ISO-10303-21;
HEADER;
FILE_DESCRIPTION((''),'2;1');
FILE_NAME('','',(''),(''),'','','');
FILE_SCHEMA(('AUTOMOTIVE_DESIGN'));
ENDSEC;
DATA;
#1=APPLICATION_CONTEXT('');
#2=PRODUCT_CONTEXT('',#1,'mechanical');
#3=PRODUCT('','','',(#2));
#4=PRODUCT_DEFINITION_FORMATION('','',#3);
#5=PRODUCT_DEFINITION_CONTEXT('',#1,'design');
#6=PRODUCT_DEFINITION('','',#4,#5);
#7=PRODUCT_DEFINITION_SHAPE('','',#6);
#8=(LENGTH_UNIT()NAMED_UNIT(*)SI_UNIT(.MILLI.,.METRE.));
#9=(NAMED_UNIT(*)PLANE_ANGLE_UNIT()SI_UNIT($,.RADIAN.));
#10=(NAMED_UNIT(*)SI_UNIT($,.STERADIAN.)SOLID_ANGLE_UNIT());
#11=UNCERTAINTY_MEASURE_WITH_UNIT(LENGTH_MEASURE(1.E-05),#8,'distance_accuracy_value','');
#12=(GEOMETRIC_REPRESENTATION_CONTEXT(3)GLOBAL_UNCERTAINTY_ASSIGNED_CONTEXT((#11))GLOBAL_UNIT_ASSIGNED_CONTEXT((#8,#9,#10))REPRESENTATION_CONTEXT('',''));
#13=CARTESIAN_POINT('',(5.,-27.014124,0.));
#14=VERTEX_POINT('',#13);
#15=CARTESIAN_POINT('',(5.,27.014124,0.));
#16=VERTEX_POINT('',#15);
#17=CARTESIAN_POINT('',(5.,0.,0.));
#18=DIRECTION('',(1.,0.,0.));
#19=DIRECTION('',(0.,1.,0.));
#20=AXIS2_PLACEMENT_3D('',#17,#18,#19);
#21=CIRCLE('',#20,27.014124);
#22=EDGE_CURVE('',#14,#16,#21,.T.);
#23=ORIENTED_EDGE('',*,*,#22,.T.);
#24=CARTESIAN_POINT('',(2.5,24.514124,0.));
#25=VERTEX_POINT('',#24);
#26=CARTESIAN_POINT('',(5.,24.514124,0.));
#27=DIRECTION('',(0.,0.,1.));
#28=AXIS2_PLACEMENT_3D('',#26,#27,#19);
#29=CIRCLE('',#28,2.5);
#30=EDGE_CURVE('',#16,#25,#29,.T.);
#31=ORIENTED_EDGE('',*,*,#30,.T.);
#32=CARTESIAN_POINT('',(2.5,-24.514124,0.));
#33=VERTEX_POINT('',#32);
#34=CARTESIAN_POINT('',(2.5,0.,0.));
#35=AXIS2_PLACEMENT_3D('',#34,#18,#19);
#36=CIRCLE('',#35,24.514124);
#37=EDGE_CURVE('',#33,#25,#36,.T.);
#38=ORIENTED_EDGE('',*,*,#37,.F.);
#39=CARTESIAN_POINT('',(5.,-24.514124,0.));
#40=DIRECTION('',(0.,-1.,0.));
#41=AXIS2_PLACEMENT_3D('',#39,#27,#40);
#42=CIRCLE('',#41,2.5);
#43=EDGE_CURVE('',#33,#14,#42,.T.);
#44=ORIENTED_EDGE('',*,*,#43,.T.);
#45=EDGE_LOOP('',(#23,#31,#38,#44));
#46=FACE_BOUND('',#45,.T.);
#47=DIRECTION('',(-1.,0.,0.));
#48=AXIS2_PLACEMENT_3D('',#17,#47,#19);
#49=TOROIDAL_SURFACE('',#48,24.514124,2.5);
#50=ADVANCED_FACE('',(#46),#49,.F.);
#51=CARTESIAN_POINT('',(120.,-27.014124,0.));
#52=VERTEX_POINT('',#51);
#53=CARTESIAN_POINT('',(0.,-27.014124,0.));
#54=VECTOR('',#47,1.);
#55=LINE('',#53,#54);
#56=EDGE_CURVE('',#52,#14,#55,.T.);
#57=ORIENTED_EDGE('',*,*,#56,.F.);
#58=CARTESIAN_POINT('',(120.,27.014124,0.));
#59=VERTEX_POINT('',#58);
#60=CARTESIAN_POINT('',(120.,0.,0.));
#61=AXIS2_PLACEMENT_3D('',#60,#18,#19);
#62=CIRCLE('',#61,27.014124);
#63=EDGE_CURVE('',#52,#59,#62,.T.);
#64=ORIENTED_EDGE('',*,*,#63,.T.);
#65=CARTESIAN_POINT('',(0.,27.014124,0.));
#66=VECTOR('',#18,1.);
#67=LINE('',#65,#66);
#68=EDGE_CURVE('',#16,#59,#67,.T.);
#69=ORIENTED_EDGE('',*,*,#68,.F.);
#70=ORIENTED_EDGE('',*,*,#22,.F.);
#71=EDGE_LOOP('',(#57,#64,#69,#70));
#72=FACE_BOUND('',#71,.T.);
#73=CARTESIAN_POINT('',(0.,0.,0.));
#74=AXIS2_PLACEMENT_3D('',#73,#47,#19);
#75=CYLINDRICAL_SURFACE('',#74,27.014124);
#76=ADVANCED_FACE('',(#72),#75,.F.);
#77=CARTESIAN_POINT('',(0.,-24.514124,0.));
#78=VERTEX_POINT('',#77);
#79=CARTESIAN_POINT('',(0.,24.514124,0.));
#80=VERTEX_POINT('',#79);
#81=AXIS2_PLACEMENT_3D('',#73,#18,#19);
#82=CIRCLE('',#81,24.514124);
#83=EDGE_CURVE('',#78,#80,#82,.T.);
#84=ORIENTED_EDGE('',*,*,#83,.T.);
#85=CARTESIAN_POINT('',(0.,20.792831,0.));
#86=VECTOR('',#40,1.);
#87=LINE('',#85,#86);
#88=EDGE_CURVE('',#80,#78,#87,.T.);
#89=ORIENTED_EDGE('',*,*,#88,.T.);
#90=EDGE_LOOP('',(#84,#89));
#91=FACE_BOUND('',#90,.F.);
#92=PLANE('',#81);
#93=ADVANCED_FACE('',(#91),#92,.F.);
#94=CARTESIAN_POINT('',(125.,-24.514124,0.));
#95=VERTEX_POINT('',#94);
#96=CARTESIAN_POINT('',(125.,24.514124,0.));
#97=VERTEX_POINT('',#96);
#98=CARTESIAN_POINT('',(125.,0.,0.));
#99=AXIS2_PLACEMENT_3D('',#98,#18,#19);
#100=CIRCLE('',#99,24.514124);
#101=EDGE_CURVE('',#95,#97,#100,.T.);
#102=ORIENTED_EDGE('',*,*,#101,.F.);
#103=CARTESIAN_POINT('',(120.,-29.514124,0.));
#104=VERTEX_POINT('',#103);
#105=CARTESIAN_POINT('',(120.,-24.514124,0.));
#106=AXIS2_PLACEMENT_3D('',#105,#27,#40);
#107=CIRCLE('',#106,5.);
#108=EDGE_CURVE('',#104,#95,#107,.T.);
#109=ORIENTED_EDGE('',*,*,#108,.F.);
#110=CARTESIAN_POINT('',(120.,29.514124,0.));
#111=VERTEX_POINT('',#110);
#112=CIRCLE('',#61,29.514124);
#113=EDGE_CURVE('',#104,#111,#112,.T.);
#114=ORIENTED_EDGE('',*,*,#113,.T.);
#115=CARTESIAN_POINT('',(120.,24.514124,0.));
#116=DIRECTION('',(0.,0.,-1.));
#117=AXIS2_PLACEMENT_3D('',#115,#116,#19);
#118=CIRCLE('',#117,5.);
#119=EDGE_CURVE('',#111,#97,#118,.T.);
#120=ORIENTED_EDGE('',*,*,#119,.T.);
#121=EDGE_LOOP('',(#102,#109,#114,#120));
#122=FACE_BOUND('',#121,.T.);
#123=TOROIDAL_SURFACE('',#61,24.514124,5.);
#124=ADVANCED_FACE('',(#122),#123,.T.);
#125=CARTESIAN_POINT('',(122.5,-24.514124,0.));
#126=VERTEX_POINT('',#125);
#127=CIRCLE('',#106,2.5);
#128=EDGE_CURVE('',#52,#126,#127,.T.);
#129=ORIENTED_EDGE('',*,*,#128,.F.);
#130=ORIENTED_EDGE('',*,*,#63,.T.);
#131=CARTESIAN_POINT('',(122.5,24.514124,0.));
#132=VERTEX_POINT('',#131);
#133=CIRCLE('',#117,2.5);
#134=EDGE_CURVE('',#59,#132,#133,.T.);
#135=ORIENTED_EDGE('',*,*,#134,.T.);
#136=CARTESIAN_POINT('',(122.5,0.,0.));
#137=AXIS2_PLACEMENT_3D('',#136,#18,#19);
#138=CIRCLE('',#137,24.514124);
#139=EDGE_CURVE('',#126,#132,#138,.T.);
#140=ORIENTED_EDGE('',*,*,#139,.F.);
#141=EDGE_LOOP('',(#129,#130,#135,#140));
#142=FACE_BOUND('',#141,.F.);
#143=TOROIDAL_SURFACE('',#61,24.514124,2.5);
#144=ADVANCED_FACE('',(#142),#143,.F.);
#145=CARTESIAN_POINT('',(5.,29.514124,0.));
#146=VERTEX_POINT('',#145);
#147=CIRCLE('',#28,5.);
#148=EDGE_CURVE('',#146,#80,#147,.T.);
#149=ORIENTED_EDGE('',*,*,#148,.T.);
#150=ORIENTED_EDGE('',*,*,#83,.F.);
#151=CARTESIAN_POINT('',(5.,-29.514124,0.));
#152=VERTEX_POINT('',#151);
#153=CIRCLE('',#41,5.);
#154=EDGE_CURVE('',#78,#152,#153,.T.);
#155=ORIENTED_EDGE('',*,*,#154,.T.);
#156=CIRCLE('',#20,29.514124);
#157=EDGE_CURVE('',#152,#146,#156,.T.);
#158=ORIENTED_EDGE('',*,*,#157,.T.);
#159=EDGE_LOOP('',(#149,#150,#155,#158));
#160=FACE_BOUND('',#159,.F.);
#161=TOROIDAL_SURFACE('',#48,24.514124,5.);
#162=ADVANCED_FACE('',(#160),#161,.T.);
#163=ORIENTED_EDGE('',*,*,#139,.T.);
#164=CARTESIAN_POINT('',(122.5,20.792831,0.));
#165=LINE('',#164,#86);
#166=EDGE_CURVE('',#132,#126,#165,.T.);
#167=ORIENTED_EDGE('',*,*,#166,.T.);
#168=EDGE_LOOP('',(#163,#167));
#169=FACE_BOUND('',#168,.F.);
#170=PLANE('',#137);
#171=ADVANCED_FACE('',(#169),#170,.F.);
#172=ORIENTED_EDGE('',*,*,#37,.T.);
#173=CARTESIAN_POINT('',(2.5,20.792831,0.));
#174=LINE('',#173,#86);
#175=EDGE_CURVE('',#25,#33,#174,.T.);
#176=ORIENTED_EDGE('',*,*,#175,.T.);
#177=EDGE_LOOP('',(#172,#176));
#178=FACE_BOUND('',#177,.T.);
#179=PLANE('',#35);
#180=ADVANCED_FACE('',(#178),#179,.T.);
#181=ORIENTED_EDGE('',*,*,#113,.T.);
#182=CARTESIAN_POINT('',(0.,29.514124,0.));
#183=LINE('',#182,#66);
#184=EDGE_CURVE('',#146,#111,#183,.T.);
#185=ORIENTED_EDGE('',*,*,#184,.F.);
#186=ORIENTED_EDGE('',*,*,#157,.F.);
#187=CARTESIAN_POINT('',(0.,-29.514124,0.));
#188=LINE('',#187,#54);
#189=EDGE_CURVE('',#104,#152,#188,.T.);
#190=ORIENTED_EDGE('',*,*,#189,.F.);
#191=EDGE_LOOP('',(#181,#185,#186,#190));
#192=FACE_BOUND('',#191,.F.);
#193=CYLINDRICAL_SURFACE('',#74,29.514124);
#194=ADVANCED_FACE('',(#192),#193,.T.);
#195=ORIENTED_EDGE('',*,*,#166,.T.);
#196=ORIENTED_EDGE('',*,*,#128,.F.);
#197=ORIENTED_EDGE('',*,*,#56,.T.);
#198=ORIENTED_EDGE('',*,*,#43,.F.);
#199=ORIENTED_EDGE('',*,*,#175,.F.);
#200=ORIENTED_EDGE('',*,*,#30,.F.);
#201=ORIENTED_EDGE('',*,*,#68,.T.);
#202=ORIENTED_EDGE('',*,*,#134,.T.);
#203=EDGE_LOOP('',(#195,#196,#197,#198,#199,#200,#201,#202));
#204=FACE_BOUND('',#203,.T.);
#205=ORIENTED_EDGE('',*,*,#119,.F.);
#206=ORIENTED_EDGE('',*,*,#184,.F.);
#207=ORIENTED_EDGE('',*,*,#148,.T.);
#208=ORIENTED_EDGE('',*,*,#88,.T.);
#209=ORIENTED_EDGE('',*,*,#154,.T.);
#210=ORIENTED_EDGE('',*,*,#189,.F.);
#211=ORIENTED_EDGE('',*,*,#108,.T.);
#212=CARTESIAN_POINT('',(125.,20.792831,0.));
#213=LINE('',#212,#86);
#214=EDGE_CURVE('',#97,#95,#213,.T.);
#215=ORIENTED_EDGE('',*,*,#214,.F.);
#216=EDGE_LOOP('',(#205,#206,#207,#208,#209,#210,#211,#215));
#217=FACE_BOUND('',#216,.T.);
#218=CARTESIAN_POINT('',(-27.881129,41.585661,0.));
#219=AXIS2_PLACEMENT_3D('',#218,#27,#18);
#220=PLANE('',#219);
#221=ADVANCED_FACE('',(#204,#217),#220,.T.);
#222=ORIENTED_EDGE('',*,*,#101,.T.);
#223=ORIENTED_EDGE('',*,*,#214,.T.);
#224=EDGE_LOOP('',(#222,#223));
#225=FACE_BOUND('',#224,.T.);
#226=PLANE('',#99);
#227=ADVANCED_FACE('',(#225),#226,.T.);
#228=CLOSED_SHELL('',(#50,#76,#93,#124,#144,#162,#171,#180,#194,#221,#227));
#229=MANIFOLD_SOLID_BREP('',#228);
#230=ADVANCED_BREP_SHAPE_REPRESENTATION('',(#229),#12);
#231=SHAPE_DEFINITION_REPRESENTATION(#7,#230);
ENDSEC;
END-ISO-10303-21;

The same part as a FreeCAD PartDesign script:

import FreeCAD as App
import Part
import Sketcher

V = App.Vector


def edges_at(feature, points):
    """Names of the edges that pass closest to the given points."""
    edges = feature.Shape.Edges
    near = lambda p: min(range(len(edges)), key=lambda i: edges[i].distToShape(Part.Vertex(*p))[0])
    return sorted({f"Edge{near(p) + 1}" for p in points})


def faces_at(feature, points):
    """Names of the faces that lie closest to the given points."""
    faces = feature.Shape.Faces
    near = lambda p: min(range(len(faces)), key=lambda i: faces[i].distToShape(Part.Vertex(*p))[0])
    return sorted({f"Face{near(p) + 1}" for p in points})

doc = App.newDocument("Part")
body = doc.addObject("PartDesign::Body", "Body")

# Sketch on YZ plane
sketch1 = doc.addObject("Sketcher::SketchObject", "Sketch")
body.addObject(sketch1)
sketch1.AttachmentSupport = (doc.YZ_Plane, [""])
sketch1.MapMode = "FlatFace"
sketch1.addGeometry(Part.Circle(V(0, 0, 0), V(0, 0, 1), 30), False)
sketch1.addConstraint(Sketcher.Constraint("Coincident", 0, 3, -1, 1))
sketch1.addConstraint(Sketcher.Constraint("Diameter", 0, 59.028248))
pad1 = doc.addObject("PartDesign::Pad", "Pad")
body.addObject(pad1)
pad1.Profile = sketch1
pad1.Length = 125
doc.recompute()

fillet = doc.addObject("PartDesign::Fillet", "Fillet")
body.addObject(fillet)
fillet.Base = (pad1, edges_at(pad1, [(0, -29.514, 0), (125, -29.514, 0)]))
fillet.Radius = 5

# Sketch on XY plane
sketch2 = doc.addObject("Sketcher::SketchObject", "Sketch001")
body.addObject(sketch2)
sketch2.AttachmentSupport = (doc.XY_Plane, [""])
sketch2.MapMode = "FlatFace"
sketch2.addGeometry(Part.LineSegment(V(-215, 131, 0), V(-215, -48, 0)), False)
sketch2.addGeometry(Part.LineSegment(V(-215, -48, 0), V(159, -48, 0)), False)
sketch2.addGeometry(Part.LineSegment(V(159, -48, 0), V(159, 131, 0)), False)
sketch2.addGeometry(Part.LineSegment(V(159, 131, 0), V(-215, 131, 0)), False)
sketch2.addConstraint(Sketcher.Constraint("Coincident", 0, 2, 1, 1))
sketch2.addConstraint(Sketcher.Constraint("Coincident", 1, 2, 2, 1))
sketch2.addConstraint(Sketcher.Constraint("Coincident", 2, 2, 3, 1))
sketch2.addConstraint(Sketcher.Constraint("Coincident", 3, 2, 0, 1))
sketch2.addConstraint(Sketcher.Constraint("Vertical", 0))
sketch2.addConstraint(Sketcher.Constraint("Horizontal", 1))
sketch2.addConstraint(Sketcher.Constraint("Vertical", 2))
sketch2.addConstraint(Sketcher.Constraint("Horizontal", 3))
sketch2.addConstraint(Sketcher.Constraint("DistanceX", 1, 1, 1, 2, 373.883869))
sketch2.addConstraint(Sketcher.Constraint("DistanceY", 0, 2, 0, 1, 179.509982))
sketch2.addConstraint(Sketcher.Constraint("DistanceY", 0, 2, -1, 1, 48.16933))
sketch2.addConstraint(Sketcher.Constraint("DistanceX", 0, 2, -1, 1, 214.823063))
pocket1 = doc.addObject("PartDesign::Pocket", "Pocket")
body.addObject(pocket1)
pocket1.Profile = sketch2
pocket1.Type = "ThroughAll"
pocket1.Reversed = True
doc.recompute()

thickness = doc.addObject("PartDesign::Thickness", "Thickness")
body.addObject(thickness)
thickness.Base = (pocket1, faces_at(pocket1, [(62.5, 0, 0)]))
thickness.Value = 2.5
thickness.Reversed = True
thickness.Join = "Arc"

doc.recompute()
